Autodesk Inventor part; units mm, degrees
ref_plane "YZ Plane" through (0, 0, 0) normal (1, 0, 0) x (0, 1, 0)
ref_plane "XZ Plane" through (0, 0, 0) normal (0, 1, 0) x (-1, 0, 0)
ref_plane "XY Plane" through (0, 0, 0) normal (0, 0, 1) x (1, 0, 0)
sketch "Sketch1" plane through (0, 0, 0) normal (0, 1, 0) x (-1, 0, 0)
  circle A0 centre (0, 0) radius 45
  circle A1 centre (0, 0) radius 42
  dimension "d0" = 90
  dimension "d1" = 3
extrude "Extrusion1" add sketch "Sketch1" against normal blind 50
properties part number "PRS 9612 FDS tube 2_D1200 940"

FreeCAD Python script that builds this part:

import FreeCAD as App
import Part
import Sketcher

doc = App.newDocument("Part")
params = doc.addObject("Spreadsheet::Sheet", "Params")
for row, (alias, value) in enumerate([
    ("sketch1_diameter", "90 mm"),
    ("sketch1_diameter2", "84 mm"),
    ("pad1_length", "50 mm"),
], start=1):
    params.set(f"A{row}", alias)
    params.set(f"B{row}", "=" + value)
    params.setAlias(f"B{row}", alias)

body = doc.addObject("PartDesign::Body", "Body")

# Sketch on XZ plane
sketch1 = body.newObject("Sketcher::SketchObject", "Sketch")
sketch1.AttachmentSupport = (doc.getObject("XZ_Plane"), [""])
sketch1.MapMode = "FlatFace"
sketch1.addGeometry([
    Part.Circle(App.Vector(0, 0, 0), App.Vector(0, 0, 1), 45),
    Part.Circle(App.Vector(0, 0, 0), App.Vector(0, 0, 1), 42),
], False)
sketch1.addConstraint([
    Sketcher.Constraint("Coincident", 0, 3, -1, 1),
    Sketcher.Constraint("Coincident", 1, 3, -1, 1),
    Sketcher.Constraint("Diameter", 0, 90.0),
    Sketcher.Constraint("Diameter", 1, 84.0),
])
sketch1.setExpression("Constraints[2]", "Params.sketch1_diameter")
sketch1.setExpression("Constraints[3]", "Params.sketch1_diameter2")
pad1 = body.newObject("PartDesign::Pad", "Pad")
pad1.Profile = sketch1
pad1.setExpression("Length", "Params.pad1_length")

doc.recompute()
